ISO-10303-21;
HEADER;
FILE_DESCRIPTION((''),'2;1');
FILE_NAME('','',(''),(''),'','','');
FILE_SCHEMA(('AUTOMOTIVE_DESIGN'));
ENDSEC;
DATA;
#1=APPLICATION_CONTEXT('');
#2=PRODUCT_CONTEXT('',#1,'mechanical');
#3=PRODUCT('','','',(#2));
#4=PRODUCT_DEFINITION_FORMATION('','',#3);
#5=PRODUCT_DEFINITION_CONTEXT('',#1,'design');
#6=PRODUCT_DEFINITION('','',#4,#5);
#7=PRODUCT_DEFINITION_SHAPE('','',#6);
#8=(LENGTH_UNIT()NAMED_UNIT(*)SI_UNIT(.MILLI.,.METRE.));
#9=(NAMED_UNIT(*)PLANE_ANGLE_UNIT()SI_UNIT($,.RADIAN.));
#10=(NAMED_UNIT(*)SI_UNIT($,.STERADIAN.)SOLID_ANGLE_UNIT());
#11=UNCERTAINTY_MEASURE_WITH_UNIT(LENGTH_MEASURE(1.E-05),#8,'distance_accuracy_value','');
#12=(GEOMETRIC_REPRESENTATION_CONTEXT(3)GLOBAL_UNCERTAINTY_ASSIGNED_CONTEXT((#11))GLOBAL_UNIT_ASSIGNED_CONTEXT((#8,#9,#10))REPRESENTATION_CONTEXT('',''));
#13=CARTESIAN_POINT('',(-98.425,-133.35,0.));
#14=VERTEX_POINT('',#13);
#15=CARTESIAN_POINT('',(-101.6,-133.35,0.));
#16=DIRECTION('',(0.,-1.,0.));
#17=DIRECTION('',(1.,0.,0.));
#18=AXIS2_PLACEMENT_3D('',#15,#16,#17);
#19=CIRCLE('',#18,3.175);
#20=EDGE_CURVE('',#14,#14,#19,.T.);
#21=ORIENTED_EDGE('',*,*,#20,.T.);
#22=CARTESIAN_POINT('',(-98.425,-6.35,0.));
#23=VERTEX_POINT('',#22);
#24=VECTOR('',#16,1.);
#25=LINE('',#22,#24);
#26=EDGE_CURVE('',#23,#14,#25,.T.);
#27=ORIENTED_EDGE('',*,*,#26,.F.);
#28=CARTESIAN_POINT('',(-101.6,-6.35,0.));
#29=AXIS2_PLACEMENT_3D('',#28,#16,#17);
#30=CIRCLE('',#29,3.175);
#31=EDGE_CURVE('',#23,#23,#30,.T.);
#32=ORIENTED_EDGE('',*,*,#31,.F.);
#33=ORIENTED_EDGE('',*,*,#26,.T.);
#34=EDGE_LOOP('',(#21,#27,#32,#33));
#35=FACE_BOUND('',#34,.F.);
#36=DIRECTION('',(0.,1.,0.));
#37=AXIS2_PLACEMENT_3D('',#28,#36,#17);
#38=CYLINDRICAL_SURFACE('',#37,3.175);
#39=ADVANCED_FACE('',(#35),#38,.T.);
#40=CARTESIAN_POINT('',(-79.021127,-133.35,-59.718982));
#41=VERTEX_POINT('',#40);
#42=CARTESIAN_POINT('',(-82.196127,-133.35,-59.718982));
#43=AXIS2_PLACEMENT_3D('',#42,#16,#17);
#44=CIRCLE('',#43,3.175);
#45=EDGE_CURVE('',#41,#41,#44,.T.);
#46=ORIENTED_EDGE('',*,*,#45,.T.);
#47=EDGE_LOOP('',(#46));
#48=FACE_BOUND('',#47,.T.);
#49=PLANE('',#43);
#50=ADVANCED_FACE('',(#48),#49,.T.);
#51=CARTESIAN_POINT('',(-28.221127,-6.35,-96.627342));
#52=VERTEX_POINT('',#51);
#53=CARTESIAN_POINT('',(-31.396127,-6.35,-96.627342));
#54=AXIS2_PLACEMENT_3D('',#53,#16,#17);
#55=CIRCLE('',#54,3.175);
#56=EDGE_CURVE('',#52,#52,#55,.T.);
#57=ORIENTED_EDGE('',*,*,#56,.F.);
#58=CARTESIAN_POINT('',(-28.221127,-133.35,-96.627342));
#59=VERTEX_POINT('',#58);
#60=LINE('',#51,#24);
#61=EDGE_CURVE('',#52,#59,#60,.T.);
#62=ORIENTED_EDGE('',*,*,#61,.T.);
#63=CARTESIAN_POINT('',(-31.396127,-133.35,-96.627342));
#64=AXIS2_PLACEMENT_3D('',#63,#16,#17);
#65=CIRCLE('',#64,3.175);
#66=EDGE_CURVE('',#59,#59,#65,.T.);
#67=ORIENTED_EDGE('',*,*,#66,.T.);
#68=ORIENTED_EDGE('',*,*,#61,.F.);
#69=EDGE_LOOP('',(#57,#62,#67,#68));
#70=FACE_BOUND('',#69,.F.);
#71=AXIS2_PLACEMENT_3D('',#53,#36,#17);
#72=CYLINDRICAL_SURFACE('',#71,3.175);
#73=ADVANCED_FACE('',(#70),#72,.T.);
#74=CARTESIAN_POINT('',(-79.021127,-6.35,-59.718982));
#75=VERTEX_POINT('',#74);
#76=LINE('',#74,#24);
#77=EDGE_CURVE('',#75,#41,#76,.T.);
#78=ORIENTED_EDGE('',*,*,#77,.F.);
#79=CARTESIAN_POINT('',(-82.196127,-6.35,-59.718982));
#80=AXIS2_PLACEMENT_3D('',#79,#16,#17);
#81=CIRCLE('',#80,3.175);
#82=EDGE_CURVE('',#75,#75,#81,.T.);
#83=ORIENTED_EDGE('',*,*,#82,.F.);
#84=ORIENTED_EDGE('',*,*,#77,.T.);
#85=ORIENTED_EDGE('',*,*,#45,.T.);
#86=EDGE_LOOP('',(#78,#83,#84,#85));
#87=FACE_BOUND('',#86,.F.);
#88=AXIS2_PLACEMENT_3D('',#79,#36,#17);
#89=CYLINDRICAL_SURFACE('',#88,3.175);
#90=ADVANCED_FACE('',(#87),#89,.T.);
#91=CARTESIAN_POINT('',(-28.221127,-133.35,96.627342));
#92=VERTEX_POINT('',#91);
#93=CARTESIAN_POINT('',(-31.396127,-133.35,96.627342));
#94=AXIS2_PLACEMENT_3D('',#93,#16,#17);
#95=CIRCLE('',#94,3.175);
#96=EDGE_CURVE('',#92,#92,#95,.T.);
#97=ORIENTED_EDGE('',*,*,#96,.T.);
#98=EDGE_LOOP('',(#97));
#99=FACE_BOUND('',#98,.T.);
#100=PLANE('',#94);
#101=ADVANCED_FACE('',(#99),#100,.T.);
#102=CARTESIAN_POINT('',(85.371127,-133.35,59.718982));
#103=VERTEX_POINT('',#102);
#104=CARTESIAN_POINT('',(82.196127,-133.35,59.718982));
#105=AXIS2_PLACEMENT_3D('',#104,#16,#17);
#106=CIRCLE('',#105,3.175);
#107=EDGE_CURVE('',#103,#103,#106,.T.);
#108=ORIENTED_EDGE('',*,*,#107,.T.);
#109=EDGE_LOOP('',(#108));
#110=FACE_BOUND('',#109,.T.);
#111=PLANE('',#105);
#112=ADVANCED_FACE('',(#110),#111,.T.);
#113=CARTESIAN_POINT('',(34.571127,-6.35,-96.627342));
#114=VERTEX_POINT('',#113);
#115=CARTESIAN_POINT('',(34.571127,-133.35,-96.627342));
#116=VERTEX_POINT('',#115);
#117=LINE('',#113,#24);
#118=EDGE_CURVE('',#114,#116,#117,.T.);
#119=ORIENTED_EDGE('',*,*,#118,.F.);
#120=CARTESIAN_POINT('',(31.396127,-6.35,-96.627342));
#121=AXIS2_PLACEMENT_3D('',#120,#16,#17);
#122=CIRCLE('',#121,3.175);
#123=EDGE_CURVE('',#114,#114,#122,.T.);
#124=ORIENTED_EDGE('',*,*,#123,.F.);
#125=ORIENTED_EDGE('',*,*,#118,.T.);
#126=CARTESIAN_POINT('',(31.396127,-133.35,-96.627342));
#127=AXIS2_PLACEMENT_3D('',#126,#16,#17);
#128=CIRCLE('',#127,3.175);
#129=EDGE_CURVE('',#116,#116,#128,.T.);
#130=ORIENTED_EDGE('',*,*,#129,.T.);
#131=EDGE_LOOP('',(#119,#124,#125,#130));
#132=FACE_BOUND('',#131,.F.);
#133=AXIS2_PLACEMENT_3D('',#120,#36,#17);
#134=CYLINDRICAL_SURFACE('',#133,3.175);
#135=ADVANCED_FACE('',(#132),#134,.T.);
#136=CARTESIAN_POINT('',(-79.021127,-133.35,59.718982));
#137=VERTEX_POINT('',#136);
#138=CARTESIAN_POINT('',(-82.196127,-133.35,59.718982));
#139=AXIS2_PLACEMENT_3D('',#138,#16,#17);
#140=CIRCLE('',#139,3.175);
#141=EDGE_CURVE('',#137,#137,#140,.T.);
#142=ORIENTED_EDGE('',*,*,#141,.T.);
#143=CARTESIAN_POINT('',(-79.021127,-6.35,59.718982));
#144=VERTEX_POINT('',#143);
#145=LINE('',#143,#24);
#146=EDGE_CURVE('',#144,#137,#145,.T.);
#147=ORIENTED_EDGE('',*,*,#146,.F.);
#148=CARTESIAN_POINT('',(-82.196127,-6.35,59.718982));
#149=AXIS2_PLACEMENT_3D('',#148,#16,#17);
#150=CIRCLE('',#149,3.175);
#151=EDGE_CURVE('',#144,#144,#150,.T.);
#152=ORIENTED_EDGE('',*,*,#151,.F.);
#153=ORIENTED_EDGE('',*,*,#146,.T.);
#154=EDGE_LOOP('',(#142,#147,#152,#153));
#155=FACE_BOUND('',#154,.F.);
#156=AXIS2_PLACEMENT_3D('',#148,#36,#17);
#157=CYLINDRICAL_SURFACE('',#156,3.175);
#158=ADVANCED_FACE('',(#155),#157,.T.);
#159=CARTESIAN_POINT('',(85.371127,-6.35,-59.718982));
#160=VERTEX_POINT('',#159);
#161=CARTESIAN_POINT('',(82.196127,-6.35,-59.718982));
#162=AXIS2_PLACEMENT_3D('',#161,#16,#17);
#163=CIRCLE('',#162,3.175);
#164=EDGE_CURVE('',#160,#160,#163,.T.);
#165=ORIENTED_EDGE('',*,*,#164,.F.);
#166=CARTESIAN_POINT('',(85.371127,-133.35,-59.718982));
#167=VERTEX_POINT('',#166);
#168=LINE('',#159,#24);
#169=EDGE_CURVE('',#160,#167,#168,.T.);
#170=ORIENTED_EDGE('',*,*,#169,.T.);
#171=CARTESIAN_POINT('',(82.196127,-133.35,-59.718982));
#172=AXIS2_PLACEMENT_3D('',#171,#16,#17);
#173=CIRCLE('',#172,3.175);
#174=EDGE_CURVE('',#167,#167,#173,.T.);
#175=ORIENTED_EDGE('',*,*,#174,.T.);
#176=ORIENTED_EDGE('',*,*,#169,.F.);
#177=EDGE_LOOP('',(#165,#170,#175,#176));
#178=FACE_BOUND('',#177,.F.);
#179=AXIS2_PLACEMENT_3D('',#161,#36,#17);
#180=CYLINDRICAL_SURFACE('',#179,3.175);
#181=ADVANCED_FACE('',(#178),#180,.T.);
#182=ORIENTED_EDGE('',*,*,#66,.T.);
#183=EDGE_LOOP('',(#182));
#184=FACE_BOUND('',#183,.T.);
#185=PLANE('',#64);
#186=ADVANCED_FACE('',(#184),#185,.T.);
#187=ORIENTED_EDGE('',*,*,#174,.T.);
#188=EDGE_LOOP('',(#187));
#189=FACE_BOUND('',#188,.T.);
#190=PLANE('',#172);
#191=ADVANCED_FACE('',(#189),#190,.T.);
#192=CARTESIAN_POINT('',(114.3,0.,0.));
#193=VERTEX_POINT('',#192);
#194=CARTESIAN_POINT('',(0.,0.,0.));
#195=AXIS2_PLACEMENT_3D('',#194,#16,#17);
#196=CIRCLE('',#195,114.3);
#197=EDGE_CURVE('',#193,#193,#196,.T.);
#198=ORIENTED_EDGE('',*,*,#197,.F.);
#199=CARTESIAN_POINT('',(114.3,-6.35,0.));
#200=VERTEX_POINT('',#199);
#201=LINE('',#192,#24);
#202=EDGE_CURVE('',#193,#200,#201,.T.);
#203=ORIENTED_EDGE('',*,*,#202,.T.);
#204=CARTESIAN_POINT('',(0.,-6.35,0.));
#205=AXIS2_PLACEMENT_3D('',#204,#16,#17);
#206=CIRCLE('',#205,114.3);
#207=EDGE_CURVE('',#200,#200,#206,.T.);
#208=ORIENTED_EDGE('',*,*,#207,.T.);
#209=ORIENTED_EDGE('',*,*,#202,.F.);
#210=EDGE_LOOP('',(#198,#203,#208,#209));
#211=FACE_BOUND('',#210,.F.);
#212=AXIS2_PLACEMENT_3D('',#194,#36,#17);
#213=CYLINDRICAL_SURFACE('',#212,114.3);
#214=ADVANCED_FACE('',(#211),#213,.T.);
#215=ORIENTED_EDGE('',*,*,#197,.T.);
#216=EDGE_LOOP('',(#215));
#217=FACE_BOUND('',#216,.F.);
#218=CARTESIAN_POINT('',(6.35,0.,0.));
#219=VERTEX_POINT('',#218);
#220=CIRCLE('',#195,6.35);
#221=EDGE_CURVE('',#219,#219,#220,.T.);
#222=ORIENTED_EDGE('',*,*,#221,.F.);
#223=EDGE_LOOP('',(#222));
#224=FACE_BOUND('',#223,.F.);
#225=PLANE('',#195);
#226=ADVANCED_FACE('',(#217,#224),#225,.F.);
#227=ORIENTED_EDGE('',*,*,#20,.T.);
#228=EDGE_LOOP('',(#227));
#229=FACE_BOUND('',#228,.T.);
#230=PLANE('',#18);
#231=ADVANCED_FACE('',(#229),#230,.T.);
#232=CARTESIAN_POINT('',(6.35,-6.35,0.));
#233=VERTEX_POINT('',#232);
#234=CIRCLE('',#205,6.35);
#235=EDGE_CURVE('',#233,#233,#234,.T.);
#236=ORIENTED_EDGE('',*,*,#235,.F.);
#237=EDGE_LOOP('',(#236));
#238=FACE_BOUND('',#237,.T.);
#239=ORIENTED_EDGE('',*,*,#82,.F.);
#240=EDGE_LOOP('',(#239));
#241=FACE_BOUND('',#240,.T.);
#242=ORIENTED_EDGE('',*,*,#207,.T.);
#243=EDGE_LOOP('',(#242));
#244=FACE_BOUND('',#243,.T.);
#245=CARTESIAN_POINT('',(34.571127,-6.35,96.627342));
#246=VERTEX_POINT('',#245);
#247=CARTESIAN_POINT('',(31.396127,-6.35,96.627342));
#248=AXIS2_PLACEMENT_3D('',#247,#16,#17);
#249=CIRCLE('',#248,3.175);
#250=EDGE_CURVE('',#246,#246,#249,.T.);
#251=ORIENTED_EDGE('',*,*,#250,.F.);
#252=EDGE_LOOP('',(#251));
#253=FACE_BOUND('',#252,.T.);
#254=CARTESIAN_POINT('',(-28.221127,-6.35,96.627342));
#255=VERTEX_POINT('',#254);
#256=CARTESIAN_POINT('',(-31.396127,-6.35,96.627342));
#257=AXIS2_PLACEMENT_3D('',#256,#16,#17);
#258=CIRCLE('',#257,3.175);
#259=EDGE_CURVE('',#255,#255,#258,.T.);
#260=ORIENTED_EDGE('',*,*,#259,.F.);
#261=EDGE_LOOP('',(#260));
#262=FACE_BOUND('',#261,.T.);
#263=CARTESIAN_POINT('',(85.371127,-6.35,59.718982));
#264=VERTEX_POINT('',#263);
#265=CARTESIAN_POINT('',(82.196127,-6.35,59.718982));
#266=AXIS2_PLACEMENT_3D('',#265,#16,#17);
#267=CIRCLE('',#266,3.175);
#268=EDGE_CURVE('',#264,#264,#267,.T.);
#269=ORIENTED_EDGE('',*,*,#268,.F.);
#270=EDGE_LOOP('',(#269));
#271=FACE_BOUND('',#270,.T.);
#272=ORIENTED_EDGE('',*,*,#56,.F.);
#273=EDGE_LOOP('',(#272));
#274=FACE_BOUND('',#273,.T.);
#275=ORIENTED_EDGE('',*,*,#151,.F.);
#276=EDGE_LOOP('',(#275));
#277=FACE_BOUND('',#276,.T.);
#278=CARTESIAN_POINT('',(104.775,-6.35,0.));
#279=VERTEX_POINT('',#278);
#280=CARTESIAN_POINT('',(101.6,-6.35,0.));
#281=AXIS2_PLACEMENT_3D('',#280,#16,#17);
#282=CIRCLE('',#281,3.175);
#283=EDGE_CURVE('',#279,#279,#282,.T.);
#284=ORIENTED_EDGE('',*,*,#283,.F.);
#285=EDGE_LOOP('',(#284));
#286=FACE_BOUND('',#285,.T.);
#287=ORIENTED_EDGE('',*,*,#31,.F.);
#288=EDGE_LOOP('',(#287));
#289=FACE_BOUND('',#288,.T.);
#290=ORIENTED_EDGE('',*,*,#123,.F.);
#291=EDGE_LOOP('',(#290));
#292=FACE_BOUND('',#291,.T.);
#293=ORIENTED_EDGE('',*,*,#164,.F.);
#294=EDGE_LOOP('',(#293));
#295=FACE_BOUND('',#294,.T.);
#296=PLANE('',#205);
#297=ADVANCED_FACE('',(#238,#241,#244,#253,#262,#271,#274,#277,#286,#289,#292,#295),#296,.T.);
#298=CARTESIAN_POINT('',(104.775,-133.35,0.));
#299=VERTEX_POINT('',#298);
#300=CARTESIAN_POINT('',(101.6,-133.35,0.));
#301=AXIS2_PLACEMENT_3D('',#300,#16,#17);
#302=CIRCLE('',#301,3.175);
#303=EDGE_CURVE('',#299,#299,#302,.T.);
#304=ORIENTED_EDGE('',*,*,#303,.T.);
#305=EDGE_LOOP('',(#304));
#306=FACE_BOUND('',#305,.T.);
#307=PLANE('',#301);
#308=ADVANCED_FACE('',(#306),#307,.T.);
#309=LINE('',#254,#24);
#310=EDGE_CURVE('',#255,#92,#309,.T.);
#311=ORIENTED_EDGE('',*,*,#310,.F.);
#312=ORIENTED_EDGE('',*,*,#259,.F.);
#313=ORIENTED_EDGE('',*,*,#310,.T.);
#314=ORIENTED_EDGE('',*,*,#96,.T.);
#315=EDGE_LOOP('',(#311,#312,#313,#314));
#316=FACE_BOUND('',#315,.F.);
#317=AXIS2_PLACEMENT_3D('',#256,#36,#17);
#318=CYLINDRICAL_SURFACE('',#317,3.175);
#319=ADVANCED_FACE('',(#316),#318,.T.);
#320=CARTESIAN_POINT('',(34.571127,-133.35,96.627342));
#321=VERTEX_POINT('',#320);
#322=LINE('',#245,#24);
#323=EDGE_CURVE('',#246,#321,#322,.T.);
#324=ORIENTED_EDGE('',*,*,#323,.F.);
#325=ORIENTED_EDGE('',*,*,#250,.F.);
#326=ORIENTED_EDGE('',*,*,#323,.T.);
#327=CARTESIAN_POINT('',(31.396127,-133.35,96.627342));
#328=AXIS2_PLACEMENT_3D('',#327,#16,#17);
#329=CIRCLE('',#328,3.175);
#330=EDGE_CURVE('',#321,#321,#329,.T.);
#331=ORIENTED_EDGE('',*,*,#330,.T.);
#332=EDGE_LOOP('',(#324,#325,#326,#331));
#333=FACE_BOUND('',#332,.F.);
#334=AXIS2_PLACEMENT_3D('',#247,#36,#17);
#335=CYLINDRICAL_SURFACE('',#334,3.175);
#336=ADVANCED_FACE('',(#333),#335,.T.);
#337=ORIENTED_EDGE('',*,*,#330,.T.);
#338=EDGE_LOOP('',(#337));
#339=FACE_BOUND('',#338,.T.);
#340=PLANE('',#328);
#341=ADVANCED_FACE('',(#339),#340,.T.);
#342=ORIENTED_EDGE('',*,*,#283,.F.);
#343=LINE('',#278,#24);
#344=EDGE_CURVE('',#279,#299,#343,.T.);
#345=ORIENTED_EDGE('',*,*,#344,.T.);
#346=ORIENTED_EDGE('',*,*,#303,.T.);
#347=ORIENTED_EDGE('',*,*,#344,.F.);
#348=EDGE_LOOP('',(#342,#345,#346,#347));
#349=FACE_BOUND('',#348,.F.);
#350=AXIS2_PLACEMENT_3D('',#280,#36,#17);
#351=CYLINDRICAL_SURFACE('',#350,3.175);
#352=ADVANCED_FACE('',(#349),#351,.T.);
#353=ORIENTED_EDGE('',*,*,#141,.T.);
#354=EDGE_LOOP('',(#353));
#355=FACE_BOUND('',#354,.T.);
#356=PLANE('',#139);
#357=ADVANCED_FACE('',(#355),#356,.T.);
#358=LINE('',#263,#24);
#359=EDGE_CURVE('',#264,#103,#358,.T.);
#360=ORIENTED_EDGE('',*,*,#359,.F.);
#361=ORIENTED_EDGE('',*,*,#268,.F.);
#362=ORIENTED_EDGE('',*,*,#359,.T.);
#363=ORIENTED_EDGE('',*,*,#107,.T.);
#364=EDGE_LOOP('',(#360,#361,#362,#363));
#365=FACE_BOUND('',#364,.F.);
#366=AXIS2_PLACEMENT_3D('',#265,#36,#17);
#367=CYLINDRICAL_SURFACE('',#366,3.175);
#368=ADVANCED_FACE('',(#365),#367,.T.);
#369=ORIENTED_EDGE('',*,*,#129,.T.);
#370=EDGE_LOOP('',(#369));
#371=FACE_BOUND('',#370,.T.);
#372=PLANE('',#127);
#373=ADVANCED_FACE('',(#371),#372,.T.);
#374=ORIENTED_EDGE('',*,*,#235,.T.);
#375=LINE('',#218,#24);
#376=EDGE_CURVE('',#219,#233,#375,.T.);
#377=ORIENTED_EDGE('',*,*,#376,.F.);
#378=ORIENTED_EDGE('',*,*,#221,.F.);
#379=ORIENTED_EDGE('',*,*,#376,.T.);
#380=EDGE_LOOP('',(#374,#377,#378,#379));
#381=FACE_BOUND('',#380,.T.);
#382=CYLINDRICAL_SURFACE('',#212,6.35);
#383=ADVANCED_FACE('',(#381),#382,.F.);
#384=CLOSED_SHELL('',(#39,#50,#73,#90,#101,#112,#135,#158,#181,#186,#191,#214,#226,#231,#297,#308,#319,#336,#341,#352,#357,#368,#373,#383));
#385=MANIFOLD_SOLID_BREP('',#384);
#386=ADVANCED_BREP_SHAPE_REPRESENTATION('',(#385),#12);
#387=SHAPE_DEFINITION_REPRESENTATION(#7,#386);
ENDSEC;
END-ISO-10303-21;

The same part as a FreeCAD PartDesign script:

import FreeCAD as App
import Part
import Sketcher

V = App.Vector
Q = App.Units.Quantity

doc = App.newDocument("Part")
body = doc.addObject("PartDesign::Body", "Body")

sketch1 = body.newObject("Sketcher::SketchObject", "Sketch")
sketch1.AttachmentSupport = (doc.getObject("XZ_Plane"), [""])
sketch1.MapMode = "FlatFace"
sketch1.addGeometry([
    Part.Circle(V(0, 0, 0), V(0, 0, 1), 114),
    Part.Circle(V(0, 0, 0), V(0, 0, 1), 6),
], False)
sketch1.addConstraint([
    Sketcher.Constraint("Coincident", 0, 3, -1, 1),
    Sketcher.Constraint("Coincident", 1, 3, -1, 1),
    Sketcher.Constraint("Diameter", 0, Q("9 in")),
    Sketcher.Constraint("Diameter", 1, Q("0.5 in")),
])
pad1 = body.newObject("PartDesign::Pad", "Pad")
pad1.Profile = sketch1
pad1.Length = Q("0.25 in")

sketch2 = body.newObject("Sketcher::SketchObject", "Sketch001")
sketch2.AttachmentSupport = (doc.getObject("XZ_Plane"), [""])
sketch2.MapMode = "FlatFace"
sketch2.AttachmentOffset = App.Placement(V(0, 0, 0.25 * 25.4), App.Rotation())
sketch2.addGeometry([
    Part.Circle(V(101.6, 0, 0), V(0, 0, 1), 3.2),
    Part.Circle(V(82.2, 59.7, 0), V(0, 0, 1), 3.2),
    Part.Circle(V(31.4, 96.6, 0), V(0, 0, 1), 3.2),
    Part.Circle(V(-31.4, 96.6, 0), V(0, 0, 1), 3.2),
    Part.Circle(V(-82.2, 59.7, 0), V(0, 0, 1), 3.2),
    Part.Circle(V(-101.6, 0, 0), V(0, 0, 1), 3.2),
    Part.Circle(V(-82.2, -59.7, 0), V(0, 0, 1), 3.2),
    Part.Circle(V(-31.4, -96.6, 0), V(0, 0, 1), 3.2),
    Part.Circle(V(31.4, -96.6, 0), V(0, 0, 1), 3.2),
    Part.Circle(V(82.2, -59.7, 0), V(0, 0, 1), 3.2),
], False)
sketch2.addConstraint([
    Sketcher.Constraint("Equal", 0, 1),
    Sketcher.Constraint("Equal", 1, 2),
    Sketcher.Constraint("Equal", 2, 3),
    Sketcher.Constraint("Equal", 3, 4),
    Sketcher.Constraint("Equal", 4, 5),
    Sketcher.Constraint("Equal", 5, 6),
    Sketcher.Constraint("Equal", 6, 7),
    Sketcher.Constraint("Equal", 7, 8),
    Sketcher.Constraint("Equal", 8, 9),
    Sketcher.Constraint("Symmetric", 0, 3, 5, 3, -1, 1),
    Sketcher.Constraint("Symmetric", 1, 3, 6, 3, -1, 1),
    Sketcher.Constraint("Symmetric", 2, 3, 7, 3, -1, 1),
    Sketcher.Constraint("Symmetric", 3, 3, 8, 3, -1, 1),
    Sketcher.Constraint("Symmetric", 4, 3, 9, 3, -1, 1),
    Sketcher.Constraint("Symmetric", 2, 3, 3, 3, -2),
    Sketcher.Constraint("Symmetric", 1, 3, 4, 3, -2),
    Sketcher.Constraint("PointOnObject", 0, 3, -1),
    Sketcher.Constraint("Diameter", 0, Q("0.25 in")),
    Sketcher.Constraint("DistanceX", -1, 1, 0, 3, Q("4 in")),
    Sketcher.Constraint("DistanceX", 2, 3, 1, 3, Q("2 in")),
    Sketcher.Constraint("DistanceY", -1, 1, 1, 3, Q("59.718982 mm")),
    Sketcher.Constraint("DistanceY", -1, 1, 2, 3, Q("96.627342 mm")),
    Sketcher.Constraint("DistanceX", -1, 1, 1, 3, Q("82.196127 mm")),
])
pad2 = body.newObject("PartDesign::Pad", "Pad001")
pad2.Profile = sketch2
pad2.Length = Q("5 in")

doc.recompute()
